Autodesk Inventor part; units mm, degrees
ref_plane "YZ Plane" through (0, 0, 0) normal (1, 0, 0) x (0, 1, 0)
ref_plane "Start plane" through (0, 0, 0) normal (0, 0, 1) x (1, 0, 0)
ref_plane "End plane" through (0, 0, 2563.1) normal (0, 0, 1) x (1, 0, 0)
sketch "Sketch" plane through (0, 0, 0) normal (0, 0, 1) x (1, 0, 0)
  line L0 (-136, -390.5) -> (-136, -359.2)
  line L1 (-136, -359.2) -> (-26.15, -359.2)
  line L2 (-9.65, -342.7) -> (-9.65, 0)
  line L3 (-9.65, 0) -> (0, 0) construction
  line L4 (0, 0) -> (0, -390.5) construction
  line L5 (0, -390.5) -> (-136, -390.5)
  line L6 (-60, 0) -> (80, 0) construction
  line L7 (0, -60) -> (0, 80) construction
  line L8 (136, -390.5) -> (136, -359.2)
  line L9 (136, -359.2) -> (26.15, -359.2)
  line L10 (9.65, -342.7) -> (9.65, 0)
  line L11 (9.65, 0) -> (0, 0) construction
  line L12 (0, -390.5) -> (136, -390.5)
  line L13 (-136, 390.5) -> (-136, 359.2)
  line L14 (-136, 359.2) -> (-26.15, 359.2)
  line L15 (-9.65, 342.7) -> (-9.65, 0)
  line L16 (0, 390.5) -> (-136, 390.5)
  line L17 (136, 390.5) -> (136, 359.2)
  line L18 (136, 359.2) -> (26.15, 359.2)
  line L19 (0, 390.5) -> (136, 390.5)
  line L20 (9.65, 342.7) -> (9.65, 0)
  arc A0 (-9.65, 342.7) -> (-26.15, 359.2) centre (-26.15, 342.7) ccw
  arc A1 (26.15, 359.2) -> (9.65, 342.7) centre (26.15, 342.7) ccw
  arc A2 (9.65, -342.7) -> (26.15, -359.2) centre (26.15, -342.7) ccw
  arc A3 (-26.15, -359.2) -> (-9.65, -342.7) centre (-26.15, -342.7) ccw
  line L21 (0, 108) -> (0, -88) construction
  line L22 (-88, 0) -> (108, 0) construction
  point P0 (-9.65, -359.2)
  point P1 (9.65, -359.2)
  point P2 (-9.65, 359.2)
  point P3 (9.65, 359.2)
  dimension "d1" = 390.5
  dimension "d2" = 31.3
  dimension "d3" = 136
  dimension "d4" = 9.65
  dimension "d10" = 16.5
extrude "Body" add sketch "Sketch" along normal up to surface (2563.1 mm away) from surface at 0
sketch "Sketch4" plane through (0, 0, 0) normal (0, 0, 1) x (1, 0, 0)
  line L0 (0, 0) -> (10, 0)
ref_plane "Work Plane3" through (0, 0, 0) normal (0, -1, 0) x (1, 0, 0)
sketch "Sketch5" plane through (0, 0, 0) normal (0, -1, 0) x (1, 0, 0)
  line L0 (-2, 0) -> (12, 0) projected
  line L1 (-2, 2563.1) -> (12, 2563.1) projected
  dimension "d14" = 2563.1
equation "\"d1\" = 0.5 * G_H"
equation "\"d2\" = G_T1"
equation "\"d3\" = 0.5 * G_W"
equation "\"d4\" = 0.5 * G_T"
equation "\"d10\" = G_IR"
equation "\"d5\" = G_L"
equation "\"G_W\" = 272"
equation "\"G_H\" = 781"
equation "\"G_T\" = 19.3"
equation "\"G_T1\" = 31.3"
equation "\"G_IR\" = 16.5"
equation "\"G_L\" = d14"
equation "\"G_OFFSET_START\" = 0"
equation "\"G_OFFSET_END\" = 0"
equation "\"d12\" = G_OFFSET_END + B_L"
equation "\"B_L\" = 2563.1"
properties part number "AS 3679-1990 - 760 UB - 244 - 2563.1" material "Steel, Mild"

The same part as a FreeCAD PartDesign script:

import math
import FreeCAD as App
import Part
import Sketcher
Q = App.Units.Quantity

doc = App.newDocument("Part")
body = doc.addObject("PartDesign::Body", "Body")

sketch1 = doc.addObject("Sketcher::SketchObject", "Sketch")
body.addObject(sketch1)
sketch1.AttachmentSupport = (doc.XY_Plane, [""])
sketch1.MapMode = "FlatFace"
sketch1.addGeometry([
    Part.LineSegment(App.Vector(-136, -359.2, 0), App.Vector(-136, -390.5, 0)),
    Part.LineSegment(App.Vector(-136, -390.5, 0), App.Vector(136, -390.5, 0)),
    Part.LineSegment(App.Vector(136, -390.5, 0), App.Vector(136, -359.2, 0)),
    Part.LineSegment(App.Vector(136, -359.2, 0), App.Vector(26.15, -359.2, 0)),
    Part.ArcOfCircle(Part.Circle(App.Vector(26.15, -342.7, 0), App.Vector(0, 0, 1), 16.5), math.radians(180), math.radians(270)),
    Part.LineSegment(App.Vector(9.65, -342.7, 0), App.Vector(9.65, 342.7, 0)),
    Part.ArcOfCircle(Part.Circle(App.Vector(26.15, 342.7, 0), App.Vector(0, 0, 1), 16.5), math.radians(90), math.radians(180)),
    Part.LineSegment(App.Vector(26.15, 359.2, 0), App.Vector(136, 359.2, 0)),
    Part.LineSegment(App.Vector(136, 359.2, 0), App.Vector(136, 390.5, 0)),
    Part.LineSegment(App.Vector(136, 390.5, 0), App.Vector(-136, 390.5, 0)),
    Part.LineSegment(App.Vector(-136, 390.5, 0), App.Vector(-136, 359.2, 0)),
    Part.LineSegment(App.Vector(-136, 359.2, 0), App.Vector(-26.15, 359.2, 0)),
    Part.ArcOfCircle(Part.Circle(App.Vector(-26.15, 342.7, 0), App.Vector(0, 0, 1), 16.5), math.radians(0), math.radians(90)),
    Part.LineSegment(App.Vector(-9.65, 342.7, 0), App.Vector(-9.65, -342.7, 0)),
    Part.ArcOfCircle(Part.Circle(App.Vector(-26.15, -342.7, 0), App.Vector(0, 0, 1), 16.5), math.radians(-90), math.radians(0)),
    Part.LineSegment(App.Vector(-26.15, -359.2, 0), App.Vector(-136, -359.2, 0)),
], False)
sketch1.addConstraint([
    Sketcher.Constraint("Coincident", 0, 2, 1, 1),
    Sketcher.Constraint("Coincident", 1, 2, 2, 1),
    Sketcher.Constraint("Coincident", 2, 2, 3, 1),
    Sketcher.Constraint("Tangent", 3, 2, 4, 2),
    Sketcher.Constraint("Tangent", 4, 1, 5, 1),
    Sketcher.Constraint("Tangent", 5, 2, 6, 2),
    Sketcher.Constraint("Tangent", 6, 1, 7, 1),
    Sketcher.Constraint("Coincident", 7, 2, 8, 1),
    Sketcher.Constraint("Coincident", 8, 2, 9, 1),
    Sketcher.Constraint("Coincident", 9, 2, 10, 1),
    Sketcher.Constraint("Coincident", 10, 2, 11, 1),
    Sketcher.Constraint("Tangent", 11, 2, 12, 2),
    Sketcher.Constraint("Tangent", 12, 1, 13, 1),
    Sketcher.Constraint("Tangent", 13, 2, 14, 2),
    Sketcher.Constraint("Tangent", 14, 1, 15, 1),
    Sketcher.Constraint("Coincident", 15, 2, 0, 1),
    Sketcher.Constraint("Vertical", 0),
    Sketcher.Constraint("Horizontal", 1),
    Sketcher.Constraint("Vertical", 2),
    Sketcher.Constraint("Horizontal", 3),
    Sketcher.Constraint("Vertical", 5),
    Sketcher.Constraint("Horizontal", 7),
    Sketcher.Constraint("Vertical", 8),
    Sketcher.Constraint("Horizontal", 9),
    Sketcher.Constraint("Vertical", 10),
    Sketcher.Constraint("Horizontal", 11),
    Sketcher.Constraint("Vertical", 13),
    Sketcher.Constraint("Horizontal", 15),
    Sketcher.Constraint("Equal", 4, 6),
    Sketcher.Constraint("Equal", 6, 12),
    Sketcher.Constraint("Equal", 12, 14),
    Sketcher.Constraint("Symmetric", 4, 3, 12, 3, -1, 1),
    Sketcher.Constraint("Symmetric", 0, 2, 8, 2, -1, 1),
    Sketcher.Constraint("Symmetric", 7, 2, 10, 2, -2),
    Sketcher.Constraint("Symmetric", 2, 2, 15, 2, -2),
    Sketcher.Constraint("Radius", 4, Q("16.5 mm")),
    Sketcher.Constraint("DistanceY", 0, 2, 0, 1, Q("31.3 mm")),
    Sketcher.Constraint("DistanceX", 0, 2, -1, 1, Q("136 mm")),
    Sketcher.Constraint("DistanceY", 0, 2, -1, 1, Q("390.5 mm")),
    Sketcher.Constraint("DistanceX", -1, 1, 4, 1, Q("9.65 mm")),
])
pad1 = doc.addObject("PartDesign::Pad", "Pad")
body.addObject(pad1)
pad1.Profile = sketch1
pad1.Length = 2563.1

doc.recompute()
